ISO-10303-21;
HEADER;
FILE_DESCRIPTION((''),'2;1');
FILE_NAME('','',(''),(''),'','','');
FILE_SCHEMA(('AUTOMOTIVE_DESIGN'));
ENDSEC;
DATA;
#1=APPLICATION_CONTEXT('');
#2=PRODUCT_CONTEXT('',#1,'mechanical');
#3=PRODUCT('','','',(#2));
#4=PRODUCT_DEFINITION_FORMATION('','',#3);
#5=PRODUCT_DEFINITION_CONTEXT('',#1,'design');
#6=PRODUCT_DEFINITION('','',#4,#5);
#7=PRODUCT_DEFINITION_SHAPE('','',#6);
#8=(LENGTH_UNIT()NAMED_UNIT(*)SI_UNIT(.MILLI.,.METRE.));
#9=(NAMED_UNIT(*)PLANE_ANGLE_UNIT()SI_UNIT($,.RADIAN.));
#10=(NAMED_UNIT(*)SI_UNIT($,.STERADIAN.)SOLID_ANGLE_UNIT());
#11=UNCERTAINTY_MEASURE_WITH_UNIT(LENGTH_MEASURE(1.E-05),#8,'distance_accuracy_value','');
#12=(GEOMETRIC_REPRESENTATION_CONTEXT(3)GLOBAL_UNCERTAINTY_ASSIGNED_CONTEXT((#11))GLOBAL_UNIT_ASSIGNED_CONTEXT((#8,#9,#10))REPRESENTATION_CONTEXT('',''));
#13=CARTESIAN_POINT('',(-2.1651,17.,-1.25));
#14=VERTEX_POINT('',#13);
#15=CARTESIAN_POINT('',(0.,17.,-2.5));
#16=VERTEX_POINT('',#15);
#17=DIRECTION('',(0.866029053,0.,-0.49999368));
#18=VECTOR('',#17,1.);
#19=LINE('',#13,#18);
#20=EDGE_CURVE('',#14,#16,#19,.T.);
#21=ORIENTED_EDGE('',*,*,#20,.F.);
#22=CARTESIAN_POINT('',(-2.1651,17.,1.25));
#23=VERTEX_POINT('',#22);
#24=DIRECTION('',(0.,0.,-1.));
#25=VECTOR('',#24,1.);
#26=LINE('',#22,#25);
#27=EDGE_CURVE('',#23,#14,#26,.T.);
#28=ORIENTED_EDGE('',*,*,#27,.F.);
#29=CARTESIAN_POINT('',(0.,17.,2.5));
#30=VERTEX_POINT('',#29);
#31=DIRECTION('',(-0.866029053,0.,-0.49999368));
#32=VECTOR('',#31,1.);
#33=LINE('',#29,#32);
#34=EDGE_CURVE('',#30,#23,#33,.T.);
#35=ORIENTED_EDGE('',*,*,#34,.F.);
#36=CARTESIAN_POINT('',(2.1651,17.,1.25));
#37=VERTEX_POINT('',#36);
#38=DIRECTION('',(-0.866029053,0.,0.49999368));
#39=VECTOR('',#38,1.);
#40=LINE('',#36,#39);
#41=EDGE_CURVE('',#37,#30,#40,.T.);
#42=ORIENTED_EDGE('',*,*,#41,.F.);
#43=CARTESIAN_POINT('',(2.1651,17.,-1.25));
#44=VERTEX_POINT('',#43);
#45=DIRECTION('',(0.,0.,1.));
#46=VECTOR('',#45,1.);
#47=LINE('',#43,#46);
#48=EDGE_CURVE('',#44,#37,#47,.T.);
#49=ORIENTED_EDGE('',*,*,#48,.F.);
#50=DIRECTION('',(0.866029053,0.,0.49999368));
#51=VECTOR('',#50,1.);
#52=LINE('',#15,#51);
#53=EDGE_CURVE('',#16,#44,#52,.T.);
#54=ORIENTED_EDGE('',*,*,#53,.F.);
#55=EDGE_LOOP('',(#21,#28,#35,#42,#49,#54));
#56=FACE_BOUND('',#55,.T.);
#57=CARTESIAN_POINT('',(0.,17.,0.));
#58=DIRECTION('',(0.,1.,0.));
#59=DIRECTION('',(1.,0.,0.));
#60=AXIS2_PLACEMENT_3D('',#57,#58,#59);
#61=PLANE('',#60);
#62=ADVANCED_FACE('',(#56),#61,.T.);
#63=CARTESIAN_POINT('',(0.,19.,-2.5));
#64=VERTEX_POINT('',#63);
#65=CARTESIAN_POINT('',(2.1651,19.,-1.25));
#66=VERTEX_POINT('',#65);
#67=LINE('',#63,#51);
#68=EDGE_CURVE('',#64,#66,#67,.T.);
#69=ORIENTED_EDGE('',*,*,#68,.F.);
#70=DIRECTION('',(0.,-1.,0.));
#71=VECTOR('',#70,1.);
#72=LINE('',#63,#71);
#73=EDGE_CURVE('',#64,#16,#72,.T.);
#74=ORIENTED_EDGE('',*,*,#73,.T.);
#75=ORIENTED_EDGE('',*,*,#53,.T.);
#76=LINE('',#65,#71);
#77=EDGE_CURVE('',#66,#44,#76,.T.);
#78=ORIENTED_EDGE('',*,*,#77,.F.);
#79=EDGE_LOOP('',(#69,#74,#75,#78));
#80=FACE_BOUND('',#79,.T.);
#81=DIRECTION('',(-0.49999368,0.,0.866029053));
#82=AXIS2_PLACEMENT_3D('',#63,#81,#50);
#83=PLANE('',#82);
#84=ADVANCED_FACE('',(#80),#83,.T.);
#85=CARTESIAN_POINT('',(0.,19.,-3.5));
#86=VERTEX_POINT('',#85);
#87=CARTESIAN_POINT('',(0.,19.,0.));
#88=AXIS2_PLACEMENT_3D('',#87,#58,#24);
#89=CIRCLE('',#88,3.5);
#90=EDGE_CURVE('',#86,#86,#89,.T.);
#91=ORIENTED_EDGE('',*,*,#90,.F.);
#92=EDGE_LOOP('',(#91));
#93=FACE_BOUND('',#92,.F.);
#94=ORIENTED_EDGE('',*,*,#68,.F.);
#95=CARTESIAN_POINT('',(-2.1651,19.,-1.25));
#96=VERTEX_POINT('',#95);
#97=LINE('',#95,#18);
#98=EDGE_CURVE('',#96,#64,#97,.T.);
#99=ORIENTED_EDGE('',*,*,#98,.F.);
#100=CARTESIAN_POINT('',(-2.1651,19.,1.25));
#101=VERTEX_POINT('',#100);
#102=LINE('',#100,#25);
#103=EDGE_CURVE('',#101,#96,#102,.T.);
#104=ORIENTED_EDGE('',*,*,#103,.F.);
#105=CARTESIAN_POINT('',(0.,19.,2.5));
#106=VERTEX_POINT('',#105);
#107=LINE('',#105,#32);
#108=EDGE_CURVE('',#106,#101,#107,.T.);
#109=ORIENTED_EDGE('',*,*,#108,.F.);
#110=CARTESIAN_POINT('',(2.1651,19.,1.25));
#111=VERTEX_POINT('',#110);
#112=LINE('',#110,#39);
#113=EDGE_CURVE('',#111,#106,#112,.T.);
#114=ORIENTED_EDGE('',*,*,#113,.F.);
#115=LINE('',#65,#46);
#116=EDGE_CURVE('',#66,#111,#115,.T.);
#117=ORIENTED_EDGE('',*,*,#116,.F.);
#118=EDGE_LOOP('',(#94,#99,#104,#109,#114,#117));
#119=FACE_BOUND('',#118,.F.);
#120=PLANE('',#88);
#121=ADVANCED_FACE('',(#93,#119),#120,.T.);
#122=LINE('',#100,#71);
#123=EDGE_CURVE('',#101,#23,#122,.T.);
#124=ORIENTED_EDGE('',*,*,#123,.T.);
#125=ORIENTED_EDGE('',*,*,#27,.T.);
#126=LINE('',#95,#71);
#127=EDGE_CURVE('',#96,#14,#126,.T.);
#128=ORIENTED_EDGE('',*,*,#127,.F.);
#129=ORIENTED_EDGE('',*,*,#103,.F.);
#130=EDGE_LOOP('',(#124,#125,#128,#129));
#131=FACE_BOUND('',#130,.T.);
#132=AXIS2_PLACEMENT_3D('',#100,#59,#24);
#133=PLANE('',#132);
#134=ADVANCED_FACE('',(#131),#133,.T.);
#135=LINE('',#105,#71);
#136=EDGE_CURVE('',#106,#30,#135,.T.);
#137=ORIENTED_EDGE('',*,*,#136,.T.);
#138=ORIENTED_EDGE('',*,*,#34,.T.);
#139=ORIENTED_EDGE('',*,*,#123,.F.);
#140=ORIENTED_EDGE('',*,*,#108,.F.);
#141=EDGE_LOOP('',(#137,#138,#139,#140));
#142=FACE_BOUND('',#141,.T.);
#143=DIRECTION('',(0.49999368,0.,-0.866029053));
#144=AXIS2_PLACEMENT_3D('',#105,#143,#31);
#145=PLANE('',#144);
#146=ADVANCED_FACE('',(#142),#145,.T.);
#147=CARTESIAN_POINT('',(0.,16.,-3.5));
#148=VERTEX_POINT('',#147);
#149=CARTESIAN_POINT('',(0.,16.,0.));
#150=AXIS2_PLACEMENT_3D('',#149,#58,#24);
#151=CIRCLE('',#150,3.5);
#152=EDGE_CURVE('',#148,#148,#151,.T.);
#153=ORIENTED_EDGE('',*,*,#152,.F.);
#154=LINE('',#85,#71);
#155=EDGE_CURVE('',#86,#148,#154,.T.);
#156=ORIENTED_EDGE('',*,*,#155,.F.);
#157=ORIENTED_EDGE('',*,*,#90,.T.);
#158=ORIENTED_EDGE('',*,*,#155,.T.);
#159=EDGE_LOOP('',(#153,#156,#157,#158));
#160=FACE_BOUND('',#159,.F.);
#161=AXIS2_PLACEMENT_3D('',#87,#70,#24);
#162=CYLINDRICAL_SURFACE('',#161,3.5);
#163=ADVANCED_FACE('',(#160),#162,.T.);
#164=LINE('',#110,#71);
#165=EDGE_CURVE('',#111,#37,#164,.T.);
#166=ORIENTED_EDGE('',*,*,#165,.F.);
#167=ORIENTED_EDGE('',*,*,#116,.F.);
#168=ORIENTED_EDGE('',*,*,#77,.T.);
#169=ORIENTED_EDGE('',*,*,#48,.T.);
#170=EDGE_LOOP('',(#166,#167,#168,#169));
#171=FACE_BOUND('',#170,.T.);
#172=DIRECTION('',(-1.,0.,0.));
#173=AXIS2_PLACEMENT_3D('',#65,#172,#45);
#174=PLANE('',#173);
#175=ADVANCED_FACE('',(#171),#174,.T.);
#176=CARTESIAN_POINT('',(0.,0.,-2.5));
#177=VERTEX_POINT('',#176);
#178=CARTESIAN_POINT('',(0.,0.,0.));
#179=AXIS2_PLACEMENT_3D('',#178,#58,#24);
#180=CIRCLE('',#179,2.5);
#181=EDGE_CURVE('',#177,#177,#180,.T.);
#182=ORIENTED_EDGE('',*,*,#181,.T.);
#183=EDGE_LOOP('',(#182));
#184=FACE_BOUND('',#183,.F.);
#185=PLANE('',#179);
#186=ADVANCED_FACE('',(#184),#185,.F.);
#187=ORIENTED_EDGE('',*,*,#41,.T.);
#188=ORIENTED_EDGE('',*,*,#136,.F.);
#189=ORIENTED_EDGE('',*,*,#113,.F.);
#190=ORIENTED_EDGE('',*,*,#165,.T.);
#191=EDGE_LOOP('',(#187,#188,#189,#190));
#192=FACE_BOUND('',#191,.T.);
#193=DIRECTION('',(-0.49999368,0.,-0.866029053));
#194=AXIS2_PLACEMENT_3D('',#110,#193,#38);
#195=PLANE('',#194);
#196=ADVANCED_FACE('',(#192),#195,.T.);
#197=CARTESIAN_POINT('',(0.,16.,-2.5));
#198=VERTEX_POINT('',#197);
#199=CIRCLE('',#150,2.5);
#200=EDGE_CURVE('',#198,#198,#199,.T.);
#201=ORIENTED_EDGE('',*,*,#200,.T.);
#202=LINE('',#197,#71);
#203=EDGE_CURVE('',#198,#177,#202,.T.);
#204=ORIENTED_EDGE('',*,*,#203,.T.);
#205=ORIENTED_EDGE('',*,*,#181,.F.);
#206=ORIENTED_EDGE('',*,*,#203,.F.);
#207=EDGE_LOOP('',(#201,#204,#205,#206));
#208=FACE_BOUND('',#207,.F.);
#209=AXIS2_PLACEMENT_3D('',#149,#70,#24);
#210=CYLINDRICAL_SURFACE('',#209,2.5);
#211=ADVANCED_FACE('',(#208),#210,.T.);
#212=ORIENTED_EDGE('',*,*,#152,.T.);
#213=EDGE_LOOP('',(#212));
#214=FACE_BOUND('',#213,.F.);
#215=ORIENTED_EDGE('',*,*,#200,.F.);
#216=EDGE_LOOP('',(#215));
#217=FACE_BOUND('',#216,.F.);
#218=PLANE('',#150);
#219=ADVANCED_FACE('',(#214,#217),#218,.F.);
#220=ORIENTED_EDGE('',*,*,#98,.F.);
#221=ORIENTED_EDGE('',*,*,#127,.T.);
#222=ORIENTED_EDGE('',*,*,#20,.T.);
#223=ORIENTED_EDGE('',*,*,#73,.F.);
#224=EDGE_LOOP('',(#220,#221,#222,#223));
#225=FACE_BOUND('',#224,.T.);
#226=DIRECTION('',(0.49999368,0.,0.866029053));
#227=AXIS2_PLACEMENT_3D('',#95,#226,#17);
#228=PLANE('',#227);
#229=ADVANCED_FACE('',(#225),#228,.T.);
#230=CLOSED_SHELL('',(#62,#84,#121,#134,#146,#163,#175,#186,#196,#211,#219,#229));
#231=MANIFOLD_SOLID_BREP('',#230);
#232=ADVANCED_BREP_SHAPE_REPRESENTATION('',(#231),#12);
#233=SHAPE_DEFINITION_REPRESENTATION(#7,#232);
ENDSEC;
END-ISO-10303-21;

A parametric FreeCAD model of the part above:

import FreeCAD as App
import Part
import Sketcher
from FreeCAD import Vector
Q = App.Units.Quantity

doc = App.newDocument("Part")
params = doc.addObject("Spreadsheet::Sheet", "Params")
for row, (alias, value) in enumerate([
    ("sketch1_width", "16 mm"),
    ("sketch1_width2", "3 mm"),
    ("sketch1_height", "2.5 mm"),
    ("sketch1_height2", "3.5 mm"),
    ("revolution_angle", "360 deg"),
    ("sketch2_height", "2.5 mm"),
    ("pocket1_length", "2 mm"),
], start=1):
    params.set(f"A{row}", alias)
    params.set(f"B{row}", "=" + value)
    params.setAlias(f"B{row}", alias)

body = doc.addObject("PartDesign::Body", "Body")

sketch1 = doc.addObject("Sketcher::SketchObject", "Sketch")
body.addObject(sketch1)
sketch1.AttachmentSupport = (doc.YZ_Plane, [""])
sketch1.MapMode = "FlatFace"
sketch1.addGeometry([
    Part.LineSegment(Vector(0, 0, 0), Vector(0, -2.5, 0)),
    Part.LineSegment(Vector(0, -2.5, 0), Vector(16, -2.5, 0)),
    Part.LineSegment(Vector(16, -2.5, 0), Vector(16, -3.5, 0)),
    Part.LineSegment(Vector(16, -3.5, 0), Vector(19, -3.5, 0)),
    Part.LineSegment(Vector(19, -3.5, 0), Vector(19, 0, 0)),
    Part.LineSegment(Vector(19, 0, 0), Vector(0, 0, 0)),
], False)
sketch1.addConstraint([
    Sketcher.Constraint("Coincident", 0, 2, 1, 1),
    Sketcher.Constraint("Coincident", 1, 2, 2, 1),
    Sketcher.Constraint("Coincident", 2, 2, 3, 1),
    Sketcher.Constraint("Coincident", 3, 2, 4, 1),
    Sketcher.Constraint("Coincident", 4, 2, 5, 1),
    Sketcher.Constraint("Coincident", 5, 2, 0, 1),
    Sketcher.Constraint("Vertical", 0),
    Sketcher.Constraint("Horizontal", 1),
    Sketcher.Constraint("Vertical", 2),
    Sketcher.Constraint("Horizontal", 3),
    Sketcher.Constraint("Vertical", 4),
    Sketcher.Constraint("Horizontal", 5),
    Sketcher.Constraint("Coincident", 5, 2, -1, 1),
    Sketcher.Constraint("DistanceX", 1, 1, 1, 2, Q("16 mm")),
    Sketcher.Constraint("DistanceX", 3, 1, 3, 2, Q("3 mm")),
    Sketcher.Constraint("DistanceY", 0, 2, 0, 1, Q("2.5 mm")),
    Sketcher.Constraint("DistanceY", 4, 1, 4, 2, Q("3.5 mm")),
])
sketch1.setExpression("Constraints[13]", "Params.sketch1_width")
sketch1.setExpression("Constraints[14]", "Params.sketch1_width2")
sketch1.setExpression("Constraints[15]", "Params.sketch1_height")
sketch1.setExpression("Constraints[16]", "Params.sketch1_height2")
revolution = doc.addObject("PartDesign::Revolution", "Revolution")
body.addObject(revolution)
revolution.Profile = sketch1
revolution.ReferenceAxis = (sketch1, ["H_Axis"])
revolution.setExpression("Angle", "Params.revolution_angle")

sketch2 = doc.addObject("Sketcher::SketchObject", "Sketch001")
body.addObject(sketch2)
sketch2.AttachmentSupport = (doc.XZ_Plane, [""])
sketch2.MapMode = "FlatFace"
sketch2.AttachmentOffset = App.Placement(Vector(0, 0, -19), App.Rotation())
sketch2.addGeometry([
    Part.LineSegment(Vector(2.1651, 1.25, 0), Vector(2.1651, -1.25, 0)),
    Part.LineSegment(Vector(2.1651, -1.25, 0), Vector(0, -2.5, 0)),
    Part.LineSegment(Vector(0, -2.5, 0), Vector(-2.1651, -1.25, 0)),
    Part.LineSegment(Vector(-2.1651, -1.25, 0), Vector(-2.1651, 1.25, 0)),
    Part.LineSegment(Vector(-2.1651, 1.25, 0), Vector(0, 2.5, 0)),
    Part.LineSegment(Vector(0, 2.5, 0), Vector(2.1651, 1.25, 0)),
], False)
sketch2.addConstraint([
    Sketcher.Constraint("Coincident", 0, 2, 1, 1),
    Sketcher.Constraint("Coincident", 1, 2, 2, 1),
    Sketcher.Constraint("Coincident", 2, 2, 3, 1),
    Sketcher.Constraint("Coincident", 3, 2, 4, 1),
    Sketcher.Constraint("Coincident", 4, 2, 5, 1),
    Sketcher.Constraint("Coincident", 5, 2, 0, 1),
    Sketcher.Constraint("Vertical", 0),
    Sketcher.Constraint("Vertical", 3),
    Sketcher.Constraint("Symmetric", 0, 2, 3, 2, -1, 1),
    Sketcher.Constraint("Symmetric", 1, 2, 4, 2, -1, 1),
    Sketcher.Constraint("PointOnObject", 1, 2, -2),
    Sketcher.Constraint("Parallel", 2, 5),
    Sketcher.Constraint("Horizontal", 0, 2, 2, 2),
    Sketcher.Constraint("Angle", 1, Q("-150.0004 deg")),
    Sketcher.Constraint("DistanceY", 0, 2, 0, 1, Q("2.5 mm")),
    Sketcher.Constraint("DistanceY", 1, 2, 4, 2, Q("5 mm")),
])
sketch2.setExpression("Constraints[14]", "Params.sketch2_height")
pocket1 = doc.addObject("PartDesign::Pocket", "Pocket")
body.addObject(pocket1)
pocket1.Profile = sketch2
pocket1.setExpression("Length", "Params.pocket1_length")
pocket1.Reversed = True

doc.recompute()
